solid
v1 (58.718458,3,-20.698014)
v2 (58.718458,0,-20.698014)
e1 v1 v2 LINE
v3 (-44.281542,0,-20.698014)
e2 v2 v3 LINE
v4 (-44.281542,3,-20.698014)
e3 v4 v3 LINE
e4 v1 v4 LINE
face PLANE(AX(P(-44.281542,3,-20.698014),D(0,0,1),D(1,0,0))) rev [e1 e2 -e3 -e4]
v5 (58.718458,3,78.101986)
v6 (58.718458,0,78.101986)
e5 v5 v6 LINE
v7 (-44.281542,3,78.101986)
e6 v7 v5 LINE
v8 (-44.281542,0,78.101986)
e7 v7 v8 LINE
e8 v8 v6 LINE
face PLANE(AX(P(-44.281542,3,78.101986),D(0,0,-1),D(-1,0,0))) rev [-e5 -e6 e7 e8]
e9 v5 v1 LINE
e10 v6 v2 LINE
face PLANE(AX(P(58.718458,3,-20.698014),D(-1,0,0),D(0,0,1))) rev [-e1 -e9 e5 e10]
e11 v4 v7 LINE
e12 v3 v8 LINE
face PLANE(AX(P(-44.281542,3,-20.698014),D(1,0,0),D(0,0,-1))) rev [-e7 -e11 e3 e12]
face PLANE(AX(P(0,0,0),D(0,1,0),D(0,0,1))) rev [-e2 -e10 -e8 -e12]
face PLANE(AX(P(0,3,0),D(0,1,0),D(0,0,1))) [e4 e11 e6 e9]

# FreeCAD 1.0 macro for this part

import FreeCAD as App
import Part
import Sketcher
Q = App.Units.Quantity


def add_polygon(sketch, points):
    """Adds a closed chain of lines whose ends are joined by coincident constraints."""
    first, n = sketch.GeometryCount, len(points)
    for a, b in zip(points, points[1:] + points[:1]):
        sketch.addGeometry(Part.LineSegment(App.Vector(*a, 0), App.Vector(*b, 0)), False)
    for i in range(n):
        sketch.addConstraint(Sketcher.Constraint("Coincident", first + i, 2, first + (i + 1) % n, 1))

doc = App.newDocument("Part")
body = doc.addObject("PartDesign::Body", "Body")

# Sketch on XZ plane
sketch1 = body.newObject("Sketcher::SketchObject", "Sketch")
sketch1.AttachmentSupport = (doc.getObject("XZ_Plane"), [""])
sketch1.MapMode = "FlatFace"
add_polygon(sketch1, [(-44, -21), (-44, 78), (59, 78), (59, -21)])  # lines 0-3
sketch1.addConstraint([
    Sketcher.Constraint("Vertical", 0),
    Sketcher.Constraint("Horizontal", 1),
    Sketcher.Constraint("Vertical", 2),
    Sketcher.Constraint("Horizontal", 3),
    Sketcher.Constraint("DistanceX", 1, 1, 1, 2, Q("103 mm")),
    Sketcher.Constraint("DistanceY", 0, 1, 0, 2, Q("98.8 mm")),
    Sketcher.Constraint("DistanceX", 0, 2, -1, 1, Q("44.281542 mm")),
    Sketcher.Constraint("DistanceY", -1, 1, 0, 2, Q("78.101986 mm")),
])
pad1 = body.newObject("PartDesign::Pad", "Pad")
pad1.Profile = sketch1
pad1.Length = 3
pad1.Reversed = True

doc.recompute()
